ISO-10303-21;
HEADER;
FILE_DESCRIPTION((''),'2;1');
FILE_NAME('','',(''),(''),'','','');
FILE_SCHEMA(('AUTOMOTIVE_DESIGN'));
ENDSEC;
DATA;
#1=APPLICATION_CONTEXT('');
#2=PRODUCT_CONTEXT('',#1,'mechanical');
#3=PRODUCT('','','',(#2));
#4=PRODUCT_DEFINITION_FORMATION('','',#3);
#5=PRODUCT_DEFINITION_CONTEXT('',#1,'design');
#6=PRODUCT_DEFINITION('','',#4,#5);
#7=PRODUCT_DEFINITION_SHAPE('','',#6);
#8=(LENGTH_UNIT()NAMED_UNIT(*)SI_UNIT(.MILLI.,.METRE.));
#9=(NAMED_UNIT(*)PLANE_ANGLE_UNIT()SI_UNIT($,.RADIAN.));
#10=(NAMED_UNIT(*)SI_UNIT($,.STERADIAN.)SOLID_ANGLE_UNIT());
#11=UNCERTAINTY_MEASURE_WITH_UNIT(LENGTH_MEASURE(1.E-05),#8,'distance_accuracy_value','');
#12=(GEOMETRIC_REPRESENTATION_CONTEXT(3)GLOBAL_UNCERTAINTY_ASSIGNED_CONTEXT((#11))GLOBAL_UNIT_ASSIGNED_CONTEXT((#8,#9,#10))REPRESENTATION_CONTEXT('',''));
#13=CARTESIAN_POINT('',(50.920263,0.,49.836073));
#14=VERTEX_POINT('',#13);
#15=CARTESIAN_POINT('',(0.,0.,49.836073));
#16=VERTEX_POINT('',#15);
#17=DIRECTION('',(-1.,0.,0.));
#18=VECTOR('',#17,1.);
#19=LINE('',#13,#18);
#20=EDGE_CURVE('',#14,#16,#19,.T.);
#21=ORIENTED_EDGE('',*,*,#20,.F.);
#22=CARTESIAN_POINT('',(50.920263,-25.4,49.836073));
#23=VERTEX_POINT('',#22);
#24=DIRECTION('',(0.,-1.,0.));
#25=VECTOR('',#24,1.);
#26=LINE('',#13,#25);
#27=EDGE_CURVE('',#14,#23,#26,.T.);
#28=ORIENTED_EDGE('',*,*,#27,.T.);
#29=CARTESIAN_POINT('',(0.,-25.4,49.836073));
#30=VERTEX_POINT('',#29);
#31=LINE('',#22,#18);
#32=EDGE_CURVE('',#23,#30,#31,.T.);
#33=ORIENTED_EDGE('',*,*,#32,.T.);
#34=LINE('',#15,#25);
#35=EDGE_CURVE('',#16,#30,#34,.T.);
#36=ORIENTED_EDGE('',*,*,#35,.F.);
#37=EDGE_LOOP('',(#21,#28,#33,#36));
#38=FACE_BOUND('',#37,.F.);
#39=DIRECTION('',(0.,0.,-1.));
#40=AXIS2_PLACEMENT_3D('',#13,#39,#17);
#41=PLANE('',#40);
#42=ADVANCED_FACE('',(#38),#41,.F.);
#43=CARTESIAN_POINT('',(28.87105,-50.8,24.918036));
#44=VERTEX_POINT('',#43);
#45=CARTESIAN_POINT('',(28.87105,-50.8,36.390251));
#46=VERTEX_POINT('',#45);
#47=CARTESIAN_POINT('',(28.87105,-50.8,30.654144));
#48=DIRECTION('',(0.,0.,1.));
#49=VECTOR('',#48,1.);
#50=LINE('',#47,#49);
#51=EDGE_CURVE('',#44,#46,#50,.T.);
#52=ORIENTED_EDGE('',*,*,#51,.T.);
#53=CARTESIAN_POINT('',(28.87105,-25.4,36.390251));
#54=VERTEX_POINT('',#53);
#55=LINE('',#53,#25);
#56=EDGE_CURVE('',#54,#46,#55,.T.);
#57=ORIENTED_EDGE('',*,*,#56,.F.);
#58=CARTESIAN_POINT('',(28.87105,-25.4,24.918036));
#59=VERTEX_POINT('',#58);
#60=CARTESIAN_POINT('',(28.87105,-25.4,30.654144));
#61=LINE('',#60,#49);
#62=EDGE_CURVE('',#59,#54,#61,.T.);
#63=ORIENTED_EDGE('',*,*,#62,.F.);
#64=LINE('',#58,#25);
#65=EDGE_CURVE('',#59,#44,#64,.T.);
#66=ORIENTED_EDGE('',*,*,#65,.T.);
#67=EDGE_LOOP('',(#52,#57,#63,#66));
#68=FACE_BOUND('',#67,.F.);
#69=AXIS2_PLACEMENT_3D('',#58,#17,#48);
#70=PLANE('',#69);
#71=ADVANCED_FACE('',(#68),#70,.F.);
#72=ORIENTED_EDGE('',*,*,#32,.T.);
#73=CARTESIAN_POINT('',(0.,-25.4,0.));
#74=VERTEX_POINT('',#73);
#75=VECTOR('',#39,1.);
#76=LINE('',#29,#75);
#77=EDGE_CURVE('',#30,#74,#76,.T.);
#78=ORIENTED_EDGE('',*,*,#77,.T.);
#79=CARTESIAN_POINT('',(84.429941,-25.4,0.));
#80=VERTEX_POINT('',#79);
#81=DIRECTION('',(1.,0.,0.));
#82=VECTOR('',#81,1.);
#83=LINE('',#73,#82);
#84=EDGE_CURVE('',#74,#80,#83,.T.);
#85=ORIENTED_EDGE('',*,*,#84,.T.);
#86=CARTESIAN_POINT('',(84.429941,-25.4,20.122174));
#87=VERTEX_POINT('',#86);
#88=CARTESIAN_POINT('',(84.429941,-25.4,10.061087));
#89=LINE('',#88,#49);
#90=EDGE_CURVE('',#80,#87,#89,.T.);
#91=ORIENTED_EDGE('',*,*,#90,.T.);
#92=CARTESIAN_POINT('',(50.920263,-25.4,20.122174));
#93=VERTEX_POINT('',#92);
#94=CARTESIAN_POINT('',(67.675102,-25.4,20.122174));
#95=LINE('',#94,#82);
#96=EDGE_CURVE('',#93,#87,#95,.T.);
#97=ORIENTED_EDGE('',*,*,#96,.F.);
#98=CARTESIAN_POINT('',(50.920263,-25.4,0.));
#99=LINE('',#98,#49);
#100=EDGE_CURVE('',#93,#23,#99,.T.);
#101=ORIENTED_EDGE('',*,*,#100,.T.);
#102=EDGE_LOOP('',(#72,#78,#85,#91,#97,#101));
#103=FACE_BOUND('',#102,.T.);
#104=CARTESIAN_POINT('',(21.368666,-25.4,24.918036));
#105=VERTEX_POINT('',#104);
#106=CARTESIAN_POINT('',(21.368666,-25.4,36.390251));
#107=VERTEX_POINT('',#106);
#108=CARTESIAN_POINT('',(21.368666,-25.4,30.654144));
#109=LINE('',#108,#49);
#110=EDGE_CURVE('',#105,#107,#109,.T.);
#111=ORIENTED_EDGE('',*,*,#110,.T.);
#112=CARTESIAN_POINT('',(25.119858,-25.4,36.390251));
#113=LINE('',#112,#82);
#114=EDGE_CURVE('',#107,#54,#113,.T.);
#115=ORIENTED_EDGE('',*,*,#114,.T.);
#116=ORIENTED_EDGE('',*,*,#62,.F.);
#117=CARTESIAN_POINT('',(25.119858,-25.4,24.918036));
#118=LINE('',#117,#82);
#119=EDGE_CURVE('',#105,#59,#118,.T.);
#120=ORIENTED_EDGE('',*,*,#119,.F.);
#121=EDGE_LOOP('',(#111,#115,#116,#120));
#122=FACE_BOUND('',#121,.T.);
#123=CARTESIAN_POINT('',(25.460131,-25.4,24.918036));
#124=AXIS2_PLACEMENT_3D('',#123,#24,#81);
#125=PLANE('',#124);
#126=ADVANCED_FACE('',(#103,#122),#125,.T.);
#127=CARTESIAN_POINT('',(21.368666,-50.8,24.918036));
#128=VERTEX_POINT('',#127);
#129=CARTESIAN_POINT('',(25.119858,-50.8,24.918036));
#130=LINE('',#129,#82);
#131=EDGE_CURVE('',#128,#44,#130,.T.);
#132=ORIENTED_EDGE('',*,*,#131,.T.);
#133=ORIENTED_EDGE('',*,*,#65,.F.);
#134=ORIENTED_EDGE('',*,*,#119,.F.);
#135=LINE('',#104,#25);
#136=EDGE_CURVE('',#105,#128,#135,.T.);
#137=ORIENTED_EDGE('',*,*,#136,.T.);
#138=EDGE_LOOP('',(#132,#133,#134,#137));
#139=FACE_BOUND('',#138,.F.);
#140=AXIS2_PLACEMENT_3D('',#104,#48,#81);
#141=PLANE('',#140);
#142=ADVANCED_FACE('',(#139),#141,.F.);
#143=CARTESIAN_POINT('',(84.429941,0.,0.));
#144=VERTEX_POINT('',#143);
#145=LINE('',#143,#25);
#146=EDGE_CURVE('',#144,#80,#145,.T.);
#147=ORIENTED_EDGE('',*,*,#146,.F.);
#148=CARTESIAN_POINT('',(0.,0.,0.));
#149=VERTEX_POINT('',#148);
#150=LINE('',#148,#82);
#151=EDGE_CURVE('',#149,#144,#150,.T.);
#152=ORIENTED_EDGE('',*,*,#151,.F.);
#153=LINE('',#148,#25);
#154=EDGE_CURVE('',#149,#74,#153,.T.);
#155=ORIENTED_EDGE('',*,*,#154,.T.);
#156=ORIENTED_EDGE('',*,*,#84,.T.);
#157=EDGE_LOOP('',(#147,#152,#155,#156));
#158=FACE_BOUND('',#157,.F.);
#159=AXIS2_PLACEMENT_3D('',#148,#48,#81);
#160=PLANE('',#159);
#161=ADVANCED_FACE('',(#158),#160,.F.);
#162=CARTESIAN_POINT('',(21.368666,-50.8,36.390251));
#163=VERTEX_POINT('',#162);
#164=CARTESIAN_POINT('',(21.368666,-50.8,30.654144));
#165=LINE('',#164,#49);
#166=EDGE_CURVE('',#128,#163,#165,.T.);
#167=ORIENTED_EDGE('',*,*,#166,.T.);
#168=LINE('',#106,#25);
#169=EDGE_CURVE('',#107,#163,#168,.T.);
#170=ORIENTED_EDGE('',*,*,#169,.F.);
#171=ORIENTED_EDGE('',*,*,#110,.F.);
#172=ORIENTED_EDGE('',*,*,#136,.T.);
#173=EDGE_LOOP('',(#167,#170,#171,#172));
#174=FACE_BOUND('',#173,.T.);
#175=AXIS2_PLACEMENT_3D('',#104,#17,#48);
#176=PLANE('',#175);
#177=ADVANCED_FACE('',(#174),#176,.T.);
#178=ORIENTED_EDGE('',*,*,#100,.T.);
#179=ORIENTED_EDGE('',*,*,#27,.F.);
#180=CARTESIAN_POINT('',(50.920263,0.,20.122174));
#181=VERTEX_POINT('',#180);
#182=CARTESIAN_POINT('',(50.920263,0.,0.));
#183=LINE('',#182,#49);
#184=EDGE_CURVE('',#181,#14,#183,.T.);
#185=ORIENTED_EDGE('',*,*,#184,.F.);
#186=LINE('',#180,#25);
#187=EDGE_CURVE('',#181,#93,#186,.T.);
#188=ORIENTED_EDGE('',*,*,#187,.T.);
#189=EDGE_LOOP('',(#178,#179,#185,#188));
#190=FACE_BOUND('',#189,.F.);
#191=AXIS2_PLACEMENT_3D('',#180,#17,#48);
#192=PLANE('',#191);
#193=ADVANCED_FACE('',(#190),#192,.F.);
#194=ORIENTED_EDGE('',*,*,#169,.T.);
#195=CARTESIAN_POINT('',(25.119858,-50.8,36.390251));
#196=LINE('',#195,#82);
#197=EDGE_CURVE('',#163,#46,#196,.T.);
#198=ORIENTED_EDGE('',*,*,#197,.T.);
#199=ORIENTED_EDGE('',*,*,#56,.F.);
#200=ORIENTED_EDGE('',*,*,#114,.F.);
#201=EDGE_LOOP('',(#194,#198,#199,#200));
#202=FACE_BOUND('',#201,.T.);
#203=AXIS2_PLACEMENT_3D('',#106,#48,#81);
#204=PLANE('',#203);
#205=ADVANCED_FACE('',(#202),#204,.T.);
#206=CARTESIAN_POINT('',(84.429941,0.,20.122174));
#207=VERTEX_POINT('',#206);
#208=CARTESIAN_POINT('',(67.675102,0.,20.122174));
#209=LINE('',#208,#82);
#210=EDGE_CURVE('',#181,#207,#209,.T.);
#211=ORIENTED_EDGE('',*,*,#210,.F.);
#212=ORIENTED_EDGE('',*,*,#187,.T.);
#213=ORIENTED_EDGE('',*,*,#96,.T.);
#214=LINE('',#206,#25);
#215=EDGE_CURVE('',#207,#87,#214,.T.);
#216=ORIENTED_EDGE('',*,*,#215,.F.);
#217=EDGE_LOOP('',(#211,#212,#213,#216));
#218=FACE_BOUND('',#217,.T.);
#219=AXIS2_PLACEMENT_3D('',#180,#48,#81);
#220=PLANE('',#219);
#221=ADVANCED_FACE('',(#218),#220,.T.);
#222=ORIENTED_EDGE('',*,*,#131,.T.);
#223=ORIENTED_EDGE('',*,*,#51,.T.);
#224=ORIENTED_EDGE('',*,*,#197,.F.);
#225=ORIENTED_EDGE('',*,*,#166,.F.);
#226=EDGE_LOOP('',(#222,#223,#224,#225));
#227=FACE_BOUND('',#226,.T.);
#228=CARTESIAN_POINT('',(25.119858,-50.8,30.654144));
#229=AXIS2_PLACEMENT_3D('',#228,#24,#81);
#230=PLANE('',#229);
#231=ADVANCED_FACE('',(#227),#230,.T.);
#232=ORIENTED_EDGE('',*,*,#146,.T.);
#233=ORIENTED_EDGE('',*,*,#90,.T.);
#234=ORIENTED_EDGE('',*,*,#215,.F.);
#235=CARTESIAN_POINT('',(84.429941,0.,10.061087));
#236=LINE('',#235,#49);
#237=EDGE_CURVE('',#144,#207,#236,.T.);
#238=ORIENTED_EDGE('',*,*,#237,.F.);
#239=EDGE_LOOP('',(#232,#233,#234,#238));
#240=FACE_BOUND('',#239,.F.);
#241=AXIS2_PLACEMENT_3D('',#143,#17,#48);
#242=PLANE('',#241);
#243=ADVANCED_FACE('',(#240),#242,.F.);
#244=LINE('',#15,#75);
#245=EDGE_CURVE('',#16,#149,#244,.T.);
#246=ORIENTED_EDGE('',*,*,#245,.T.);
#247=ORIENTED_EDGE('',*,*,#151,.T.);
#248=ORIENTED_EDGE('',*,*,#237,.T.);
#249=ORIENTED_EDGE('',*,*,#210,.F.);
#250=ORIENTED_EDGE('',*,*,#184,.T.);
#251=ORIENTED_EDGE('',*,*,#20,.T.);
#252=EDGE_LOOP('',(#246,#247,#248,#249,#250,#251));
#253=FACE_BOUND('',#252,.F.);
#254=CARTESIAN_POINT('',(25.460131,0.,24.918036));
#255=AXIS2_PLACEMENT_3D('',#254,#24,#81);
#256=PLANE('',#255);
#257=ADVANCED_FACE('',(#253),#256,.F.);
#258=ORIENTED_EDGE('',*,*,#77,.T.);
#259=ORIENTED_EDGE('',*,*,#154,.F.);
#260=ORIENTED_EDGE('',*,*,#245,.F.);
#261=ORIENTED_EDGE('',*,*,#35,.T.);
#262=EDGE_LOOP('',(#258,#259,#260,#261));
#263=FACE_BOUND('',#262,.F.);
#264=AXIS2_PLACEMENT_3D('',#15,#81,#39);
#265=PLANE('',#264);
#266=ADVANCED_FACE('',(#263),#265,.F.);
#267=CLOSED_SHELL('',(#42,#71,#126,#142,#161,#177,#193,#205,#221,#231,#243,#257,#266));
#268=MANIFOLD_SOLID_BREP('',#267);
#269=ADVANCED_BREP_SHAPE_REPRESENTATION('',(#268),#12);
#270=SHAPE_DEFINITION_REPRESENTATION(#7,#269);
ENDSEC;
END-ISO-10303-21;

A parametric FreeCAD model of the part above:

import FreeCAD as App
import Part
import Sketcher

V = App.Vector
Q = App.Units.Quantity


def add_polygon(sketch, points):
    """Adds a closed chain of lines whose ends are joined by coincident constraints."""
    first, n = sketch.GeometryCount, len(points)
    for a, b in zip(points, points[1:] + points[:1]):
        sketch.addGeometry(Part.LineSegment(App.Vector(*a, 0), App.Vector(*b, 0)), False)
    for i in range(n):
        sketch.addConstraint(Sketcher.Constraint("Coincident", first + i, 2, first + (i + 1) % n, 1))

doc = App.newDocument("Part")
body = doc.addObject("PartDesign::Body", "Body")

# Sketch on XZ plane
sketch1 = doc.addObject("Sketcher::SketchObject", "Sketch")
body.addObject(sketch1)
sketch1.AttachmentSupport = (doc.XZ_Plane, [""])
sketch1.MapMode = "FlatFace"
add_polygon(sketch1, [(51, 20), (51, 50), (0, 50), (0, 0), (84, 0), (84, 20)])  # lines 0-5
sketch1.addConstraint(Sketcher.Constraint("Vertical", 0))
sketch1.addConstraint(Sketcher.Constraint("Horizontal", 1))
sketch1.addConstraint(Sketcher.Constraint("Vertical", 2))
sketch1.addConstraint(Sketcher.Constraint("Horizontal", 3))
sketch1.addConstraint(Sketcher.Constraint("Vertical", 4))
sketch1.addConstraint(Sketcher.Constraint("Horizontal", 5))
sketch1.addConstraint(Sketcher.Constraint("Coincident", 2, 2, -1, 1))
sketch1.addConstraint(Sketcher.Constraint("DistanceY", 0, 1, 0, 2, Q("29.713899 mm")))
sketch1.addConstraint(Sketcher.Constraint("DistanceX", 3, 1, 3, 2, Q("84.429941 mm")))
sketch1.addConstraint(Sketcher.Constraint("DistanceX", 5, 2, 5, 1, Q("33.509678 mm")))
sketch1.addConstraint(Sketcher.Constraint("DistanceY", 2, 2, 2, 1, Q("49.836073 mm")))
pad1 = doc.addObject("PartDesign::Pad", "Pad")
body.addObject(pad1)
pad1.Profile = sketch1
pad1.Length = Q("1 in")

# Sketch on XZ plane
sketch2 = doc.addObject("Sketcher::SketchObject", "Sketch001")
body.addObject(sketch2)
sketch2.AttachmentSupport = (doc.XZ_Plane, [""])
sketch2.MapMode = "FlatFace"
sketch2.AttachmentOffset = App.Placement(V(0, 0, 1 * 25.4), App.Rotation())
add_polygon(sketch2, [(21, 36), (21, 25), (29, 25), (29, 36)])  # lines 0-3
sketch2.addConstraint(Sketcher.Constraint("Vertical", 0))
sketch2.addConstraint(Sketcher.Constraint("Horizontal", 1))
sketch2.addConstraint(Sketcher.Constraint("Vertical", 2))
sketch2.addConstraint(Sketcher.Constraint("Horizontal", 3))
sketch2.addConstraint(Sketcher.Constraint("DistanceX", 1, 1, 1, 2, Q("7.502383 mm")))
sketch2.addConstraint(Sketcher.Constraint("DistanceY", 0, 2, 0, 1, Q("11.472215 mm")))
sketch2.addConstraint(Sketcher.Constraint("DistanceX", -1, 1, 1, 2, Q("28.87105 mm")))
sketch2.addConstraint(Sketcher.Constraint("DistanceY", -1, 1, 2, 2, Q("36.390251 mm")))
pad2 = doc.addObject("PartDesign::Pad", "Pad001")
body.addObject(pad2)
pad2.Profile = sketch2
pad2.Length = Q("1 in")

doc.recompute()
